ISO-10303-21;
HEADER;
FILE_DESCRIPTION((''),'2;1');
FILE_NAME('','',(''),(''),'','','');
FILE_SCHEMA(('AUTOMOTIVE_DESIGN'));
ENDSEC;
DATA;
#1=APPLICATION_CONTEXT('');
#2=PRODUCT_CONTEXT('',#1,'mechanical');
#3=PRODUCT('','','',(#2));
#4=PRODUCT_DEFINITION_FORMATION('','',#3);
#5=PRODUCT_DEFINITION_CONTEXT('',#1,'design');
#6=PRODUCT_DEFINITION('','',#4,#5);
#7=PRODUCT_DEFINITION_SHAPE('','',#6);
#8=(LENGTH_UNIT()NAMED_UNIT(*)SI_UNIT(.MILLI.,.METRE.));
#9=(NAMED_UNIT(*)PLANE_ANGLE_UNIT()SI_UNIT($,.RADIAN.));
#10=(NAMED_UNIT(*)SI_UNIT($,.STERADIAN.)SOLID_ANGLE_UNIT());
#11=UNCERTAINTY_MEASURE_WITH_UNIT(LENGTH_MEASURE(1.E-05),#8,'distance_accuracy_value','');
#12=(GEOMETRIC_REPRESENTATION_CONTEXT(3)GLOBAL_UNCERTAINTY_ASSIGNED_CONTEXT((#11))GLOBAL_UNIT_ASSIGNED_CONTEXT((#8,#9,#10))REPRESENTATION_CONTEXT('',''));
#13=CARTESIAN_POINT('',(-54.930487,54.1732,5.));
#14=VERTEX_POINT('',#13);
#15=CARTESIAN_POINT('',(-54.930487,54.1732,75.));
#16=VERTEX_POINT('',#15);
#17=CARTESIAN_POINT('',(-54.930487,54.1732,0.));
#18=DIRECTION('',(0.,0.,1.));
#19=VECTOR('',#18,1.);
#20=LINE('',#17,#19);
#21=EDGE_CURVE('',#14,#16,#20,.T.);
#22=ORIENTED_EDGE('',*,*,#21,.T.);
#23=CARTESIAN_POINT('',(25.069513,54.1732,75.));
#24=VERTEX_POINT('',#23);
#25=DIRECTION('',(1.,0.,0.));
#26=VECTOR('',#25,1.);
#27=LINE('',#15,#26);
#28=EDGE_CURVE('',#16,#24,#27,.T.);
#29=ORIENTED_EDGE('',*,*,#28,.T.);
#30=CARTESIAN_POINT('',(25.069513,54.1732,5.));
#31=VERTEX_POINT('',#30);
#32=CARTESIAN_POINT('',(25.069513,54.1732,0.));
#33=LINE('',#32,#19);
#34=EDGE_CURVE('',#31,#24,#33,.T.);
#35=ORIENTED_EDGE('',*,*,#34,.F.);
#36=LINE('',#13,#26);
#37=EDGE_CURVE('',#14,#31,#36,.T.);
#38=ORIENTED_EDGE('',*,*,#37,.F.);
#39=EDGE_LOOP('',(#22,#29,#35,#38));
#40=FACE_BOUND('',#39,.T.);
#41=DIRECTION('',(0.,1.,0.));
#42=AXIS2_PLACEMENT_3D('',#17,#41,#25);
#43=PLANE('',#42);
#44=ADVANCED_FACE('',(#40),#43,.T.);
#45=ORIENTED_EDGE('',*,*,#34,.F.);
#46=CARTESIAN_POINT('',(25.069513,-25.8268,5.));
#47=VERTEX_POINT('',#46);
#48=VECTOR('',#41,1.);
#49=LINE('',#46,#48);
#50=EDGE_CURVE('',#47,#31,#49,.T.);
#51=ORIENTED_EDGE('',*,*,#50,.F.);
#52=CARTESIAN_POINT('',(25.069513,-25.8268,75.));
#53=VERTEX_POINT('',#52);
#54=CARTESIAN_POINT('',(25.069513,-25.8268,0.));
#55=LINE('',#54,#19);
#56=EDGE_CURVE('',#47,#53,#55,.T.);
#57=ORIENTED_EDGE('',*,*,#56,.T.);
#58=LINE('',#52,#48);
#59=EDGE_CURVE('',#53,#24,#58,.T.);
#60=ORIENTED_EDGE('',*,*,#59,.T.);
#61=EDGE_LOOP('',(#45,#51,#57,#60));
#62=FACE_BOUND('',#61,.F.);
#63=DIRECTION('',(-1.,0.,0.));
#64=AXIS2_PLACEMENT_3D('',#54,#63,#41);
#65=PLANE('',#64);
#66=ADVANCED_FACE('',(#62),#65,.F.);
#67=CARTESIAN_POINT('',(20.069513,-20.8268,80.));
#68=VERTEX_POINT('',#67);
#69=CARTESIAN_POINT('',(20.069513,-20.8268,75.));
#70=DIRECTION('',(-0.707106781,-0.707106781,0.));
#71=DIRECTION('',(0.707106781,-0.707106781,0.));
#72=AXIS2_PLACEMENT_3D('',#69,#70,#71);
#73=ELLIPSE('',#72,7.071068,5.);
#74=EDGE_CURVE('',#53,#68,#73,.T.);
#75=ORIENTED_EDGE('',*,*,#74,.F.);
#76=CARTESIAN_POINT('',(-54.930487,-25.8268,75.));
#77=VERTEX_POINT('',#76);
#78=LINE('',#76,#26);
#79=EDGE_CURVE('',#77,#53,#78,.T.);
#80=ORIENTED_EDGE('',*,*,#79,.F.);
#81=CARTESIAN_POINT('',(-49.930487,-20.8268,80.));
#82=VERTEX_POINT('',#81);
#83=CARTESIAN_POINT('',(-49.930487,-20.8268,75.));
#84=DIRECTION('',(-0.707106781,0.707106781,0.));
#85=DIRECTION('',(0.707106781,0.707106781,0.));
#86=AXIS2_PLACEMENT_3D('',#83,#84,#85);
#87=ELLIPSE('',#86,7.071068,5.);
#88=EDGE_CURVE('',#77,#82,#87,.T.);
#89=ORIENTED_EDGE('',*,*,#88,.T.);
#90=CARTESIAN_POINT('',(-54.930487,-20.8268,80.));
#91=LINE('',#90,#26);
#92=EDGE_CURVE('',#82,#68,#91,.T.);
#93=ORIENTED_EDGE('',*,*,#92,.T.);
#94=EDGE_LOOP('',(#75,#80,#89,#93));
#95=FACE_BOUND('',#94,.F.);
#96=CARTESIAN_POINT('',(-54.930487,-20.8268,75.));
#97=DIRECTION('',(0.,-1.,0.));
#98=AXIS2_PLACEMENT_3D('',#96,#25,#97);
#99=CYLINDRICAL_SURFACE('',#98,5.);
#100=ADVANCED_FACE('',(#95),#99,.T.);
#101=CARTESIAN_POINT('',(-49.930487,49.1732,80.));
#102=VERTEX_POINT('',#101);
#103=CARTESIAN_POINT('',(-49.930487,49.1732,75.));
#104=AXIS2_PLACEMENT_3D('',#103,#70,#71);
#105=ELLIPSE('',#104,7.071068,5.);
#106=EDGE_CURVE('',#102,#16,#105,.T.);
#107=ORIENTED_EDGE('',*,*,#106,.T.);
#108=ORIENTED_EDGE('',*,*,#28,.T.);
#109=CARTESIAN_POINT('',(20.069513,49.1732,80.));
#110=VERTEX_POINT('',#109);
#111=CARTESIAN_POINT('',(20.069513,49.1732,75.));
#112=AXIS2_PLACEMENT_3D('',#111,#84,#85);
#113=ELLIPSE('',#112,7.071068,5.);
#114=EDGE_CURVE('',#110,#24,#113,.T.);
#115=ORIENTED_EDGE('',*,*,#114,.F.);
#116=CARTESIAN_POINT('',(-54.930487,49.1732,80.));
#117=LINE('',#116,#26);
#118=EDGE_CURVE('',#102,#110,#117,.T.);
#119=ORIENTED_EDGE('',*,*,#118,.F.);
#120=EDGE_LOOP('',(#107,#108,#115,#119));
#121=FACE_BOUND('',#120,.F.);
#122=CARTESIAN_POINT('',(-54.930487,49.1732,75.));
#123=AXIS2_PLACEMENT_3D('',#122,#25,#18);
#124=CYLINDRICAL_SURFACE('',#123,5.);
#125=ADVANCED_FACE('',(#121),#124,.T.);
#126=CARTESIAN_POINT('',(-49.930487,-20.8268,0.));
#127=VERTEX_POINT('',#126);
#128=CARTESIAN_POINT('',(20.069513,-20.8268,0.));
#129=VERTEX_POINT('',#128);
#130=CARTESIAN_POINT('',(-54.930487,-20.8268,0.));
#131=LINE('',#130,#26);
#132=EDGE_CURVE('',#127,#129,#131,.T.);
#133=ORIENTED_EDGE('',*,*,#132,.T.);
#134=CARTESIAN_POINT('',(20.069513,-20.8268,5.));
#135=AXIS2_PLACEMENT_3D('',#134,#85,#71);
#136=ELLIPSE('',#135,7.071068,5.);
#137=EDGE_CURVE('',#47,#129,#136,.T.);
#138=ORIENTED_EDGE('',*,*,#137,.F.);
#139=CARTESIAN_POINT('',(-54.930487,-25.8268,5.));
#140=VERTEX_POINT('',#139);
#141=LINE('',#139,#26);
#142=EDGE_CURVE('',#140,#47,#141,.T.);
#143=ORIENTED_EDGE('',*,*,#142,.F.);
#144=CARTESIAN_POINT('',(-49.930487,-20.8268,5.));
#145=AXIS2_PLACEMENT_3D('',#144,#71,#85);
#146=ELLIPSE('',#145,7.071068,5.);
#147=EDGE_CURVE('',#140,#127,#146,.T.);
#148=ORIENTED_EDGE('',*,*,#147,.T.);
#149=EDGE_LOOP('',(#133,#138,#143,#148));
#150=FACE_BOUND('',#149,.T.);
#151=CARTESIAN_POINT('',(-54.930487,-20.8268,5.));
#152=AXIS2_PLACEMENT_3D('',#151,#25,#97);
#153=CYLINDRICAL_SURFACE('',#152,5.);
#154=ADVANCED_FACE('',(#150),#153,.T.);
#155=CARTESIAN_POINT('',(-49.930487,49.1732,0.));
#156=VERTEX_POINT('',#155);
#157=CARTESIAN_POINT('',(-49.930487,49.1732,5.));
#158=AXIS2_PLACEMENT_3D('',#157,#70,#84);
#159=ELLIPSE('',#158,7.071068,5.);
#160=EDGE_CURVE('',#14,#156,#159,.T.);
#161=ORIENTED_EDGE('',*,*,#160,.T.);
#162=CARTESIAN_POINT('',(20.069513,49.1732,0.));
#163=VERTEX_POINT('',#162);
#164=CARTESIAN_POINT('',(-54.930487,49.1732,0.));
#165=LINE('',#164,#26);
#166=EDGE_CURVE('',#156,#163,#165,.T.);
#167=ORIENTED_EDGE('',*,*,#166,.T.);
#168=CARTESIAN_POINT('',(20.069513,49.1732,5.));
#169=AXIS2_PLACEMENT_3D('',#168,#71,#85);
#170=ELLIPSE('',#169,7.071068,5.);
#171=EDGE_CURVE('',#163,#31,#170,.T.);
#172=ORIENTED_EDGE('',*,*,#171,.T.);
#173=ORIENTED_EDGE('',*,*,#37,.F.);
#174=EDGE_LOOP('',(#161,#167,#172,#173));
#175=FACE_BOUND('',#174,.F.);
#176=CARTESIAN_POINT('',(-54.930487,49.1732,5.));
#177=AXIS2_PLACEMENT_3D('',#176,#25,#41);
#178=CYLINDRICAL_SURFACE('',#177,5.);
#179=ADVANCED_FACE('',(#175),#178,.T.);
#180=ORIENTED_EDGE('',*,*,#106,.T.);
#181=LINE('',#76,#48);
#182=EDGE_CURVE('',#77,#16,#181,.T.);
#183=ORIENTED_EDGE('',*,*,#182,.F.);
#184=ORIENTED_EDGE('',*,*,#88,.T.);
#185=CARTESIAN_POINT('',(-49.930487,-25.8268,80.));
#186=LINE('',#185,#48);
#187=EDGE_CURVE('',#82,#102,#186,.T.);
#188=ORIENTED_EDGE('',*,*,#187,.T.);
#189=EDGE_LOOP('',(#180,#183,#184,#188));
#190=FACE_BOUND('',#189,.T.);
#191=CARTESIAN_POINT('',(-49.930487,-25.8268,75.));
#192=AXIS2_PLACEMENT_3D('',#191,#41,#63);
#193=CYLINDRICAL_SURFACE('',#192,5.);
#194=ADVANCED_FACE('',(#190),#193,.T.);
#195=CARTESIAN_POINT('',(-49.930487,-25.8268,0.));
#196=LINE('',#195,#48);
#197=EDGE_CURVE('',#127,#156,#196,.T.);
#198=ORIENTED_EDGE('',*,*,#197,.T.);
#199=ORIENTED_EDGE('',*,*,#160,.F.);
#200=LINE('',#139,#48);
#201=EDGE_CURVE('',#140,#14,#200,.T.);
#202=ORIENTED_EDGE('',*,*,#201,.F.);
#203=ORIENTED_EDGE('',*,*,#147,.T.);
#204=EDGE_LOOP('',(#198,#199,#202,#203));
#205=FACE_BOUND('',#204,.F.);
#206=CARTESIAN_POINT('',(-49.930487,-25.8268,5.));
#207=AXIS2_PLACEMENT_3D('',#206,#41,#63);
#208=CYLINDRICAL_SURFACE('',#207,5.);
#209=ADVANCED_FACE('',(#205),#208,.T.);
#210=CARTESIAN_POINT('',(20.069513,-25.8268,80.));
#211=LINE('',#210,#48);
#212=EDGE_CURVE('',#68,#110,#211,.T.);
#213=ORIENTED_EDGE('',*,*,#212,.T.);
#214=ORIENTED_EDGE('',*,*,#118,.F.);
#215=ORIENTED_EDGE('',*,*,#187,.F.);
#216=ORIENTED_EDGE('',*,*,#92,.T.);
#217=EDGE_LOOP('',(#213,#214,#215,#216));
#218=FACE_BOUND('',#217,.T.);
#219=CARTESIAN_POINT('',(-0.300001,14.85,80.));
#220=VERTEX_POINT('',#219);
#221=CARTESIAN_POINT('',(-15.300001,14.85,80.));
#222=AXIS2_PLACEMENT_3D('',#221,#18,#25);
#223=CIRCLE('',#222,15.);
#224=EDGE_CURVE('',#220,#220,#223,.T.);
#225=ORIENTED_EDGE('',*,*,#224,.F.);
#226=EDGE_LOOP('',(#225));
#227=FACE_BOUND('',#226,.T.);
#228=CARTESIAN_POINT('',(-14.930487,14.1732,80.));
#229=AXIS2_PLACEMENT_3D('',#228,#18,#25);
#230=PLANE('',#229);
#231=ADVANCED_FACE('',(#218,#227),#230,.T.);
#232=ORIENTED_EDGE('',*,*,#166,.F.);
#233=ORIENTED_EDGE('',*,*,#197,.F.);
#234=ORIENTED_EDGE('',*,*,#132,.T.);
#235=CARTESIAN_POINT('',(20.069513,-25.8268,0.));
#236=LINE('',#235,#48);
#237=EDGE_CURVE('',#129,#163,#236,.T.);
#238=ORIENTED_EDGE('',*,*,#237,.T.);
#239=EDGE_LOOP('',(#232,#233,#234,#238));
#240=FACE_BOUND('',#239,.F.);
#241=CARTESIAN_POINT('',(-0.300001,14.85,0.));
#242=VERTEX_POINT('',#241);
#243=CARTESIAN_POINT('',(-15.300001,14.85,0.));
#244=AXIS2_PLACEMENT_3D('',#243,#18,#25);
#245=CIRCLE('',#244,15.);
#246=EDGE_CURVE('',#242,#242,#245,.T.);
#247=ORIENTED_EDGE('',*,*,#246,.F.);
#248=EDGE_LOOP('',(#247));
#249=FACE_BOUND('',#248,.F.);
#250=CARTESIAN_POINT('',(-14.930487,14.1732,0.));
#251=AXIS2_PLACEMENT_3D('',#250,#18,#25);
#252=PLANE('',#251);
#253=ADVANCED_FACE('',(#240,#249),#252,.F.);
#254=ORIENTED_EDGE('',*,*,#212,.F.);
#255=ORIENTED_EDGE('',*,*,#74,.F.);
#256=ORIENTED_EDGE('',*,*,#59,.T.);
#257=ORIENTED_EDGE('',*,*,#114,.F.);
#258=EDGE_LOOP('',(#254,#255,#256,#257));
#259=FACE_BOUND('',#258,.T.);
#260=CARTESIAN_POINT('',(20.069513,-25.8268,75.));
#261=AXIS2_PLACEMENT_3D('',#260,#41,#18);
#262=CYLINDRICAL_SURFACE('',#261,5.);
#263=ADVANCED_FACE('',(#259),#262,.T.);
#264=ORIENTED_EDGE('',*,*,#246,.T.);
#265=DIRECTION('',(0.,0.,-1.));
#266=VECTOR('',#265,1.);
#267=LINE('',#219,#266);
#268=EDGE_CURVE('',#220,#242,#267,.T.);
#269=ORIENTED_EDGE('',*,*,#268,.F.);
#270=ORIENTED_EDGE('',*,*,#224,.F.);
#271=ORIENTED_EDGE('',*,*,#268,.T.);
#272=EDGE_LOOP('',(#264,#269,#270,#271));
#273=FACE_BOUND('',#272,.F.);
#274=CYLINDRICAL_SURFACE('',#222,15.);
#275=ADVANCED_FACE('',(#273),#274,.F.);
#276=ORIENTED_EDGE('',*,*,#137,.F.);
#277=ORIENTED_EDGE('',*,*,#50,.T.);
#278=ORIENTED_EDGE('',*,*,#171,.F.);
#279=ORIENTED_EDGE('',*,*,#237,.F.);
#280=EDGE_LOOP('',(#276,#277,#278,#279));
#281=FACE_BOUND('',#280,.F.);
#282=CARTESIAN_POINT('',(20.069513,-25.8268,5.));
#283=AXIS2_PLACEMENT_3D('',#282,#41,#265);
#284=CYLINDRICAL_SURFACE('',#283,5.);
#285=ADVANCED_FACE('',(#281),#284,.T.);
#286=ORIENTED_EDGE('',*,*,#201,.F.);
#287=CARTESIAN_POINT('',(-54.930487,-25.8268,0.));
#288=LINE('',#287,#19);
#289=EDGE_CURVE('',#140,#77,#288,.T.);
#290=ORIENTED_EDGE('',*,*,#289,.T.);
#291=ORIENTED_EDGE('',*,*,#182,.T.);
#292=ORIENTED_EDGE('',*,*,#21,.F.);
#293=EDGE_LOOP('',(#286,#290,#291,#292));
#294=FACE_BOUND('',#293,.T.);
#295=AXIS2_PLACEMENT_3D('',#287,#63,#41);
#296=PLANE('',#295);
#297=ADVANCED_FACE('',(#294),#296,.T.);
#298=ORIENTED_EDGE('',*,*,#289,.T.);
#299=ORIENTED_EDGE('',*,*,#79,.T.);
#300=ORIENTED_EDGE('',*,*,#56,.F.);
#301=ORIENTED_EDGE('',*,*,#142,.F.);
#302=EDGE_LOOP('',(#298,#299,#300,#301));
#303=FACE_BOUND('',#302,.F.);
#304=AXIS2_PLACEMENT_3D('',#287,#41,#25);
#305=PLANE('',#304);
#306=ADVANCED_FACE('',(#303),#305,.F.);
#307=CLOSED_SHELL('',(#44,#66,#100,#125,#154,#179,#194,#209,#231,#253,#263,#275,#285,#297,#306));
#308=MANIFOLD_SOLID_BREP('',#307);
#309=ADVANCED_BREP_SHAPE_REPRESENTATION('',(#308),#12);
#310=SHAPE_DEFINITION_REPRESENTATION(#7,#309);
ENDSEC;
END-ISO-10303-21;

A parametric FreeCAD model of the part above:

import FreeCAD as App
import Part
import Sketcher
from FreeCAD import Vector


def edges_at(feature, points):
    """Names of the edges that pass closest to the given points."""
    edges = feature.Shape.Edges
    near = lambda p: min(range(len(edges)), key=lambda i: edges[i].distToShape(Part.Vertex(*p))[0])
    return sorted({f"Edge{near(p) + 1}" for p in points})

doc = App.newDocument("Part")
body = doc.addObject("PartDesign::Body", "Body")

sketch1 = body.newObject("Sketcher::SketchObject", "Sketch")
sketch1.AttachmentSupport = (doc.getObject("XY_Plane"), [""])
sketch1.MapMode = "FlatFace"
sketch1.addGeometry(Part.LineSegment(Vector(-55, 54, 0), Vector(-55, -26, 0)), False)
sketch1.addGeometry(Part.LineSegment(Vector(-55, -26, 0), Vector(25, -26, 0)), False)
sketch1.addGeometry(Part.LineSegment(Vector(25, -26, 0), Vector(25, 54, 0)), False)
sketch1.addGeometry(Part.LineSegment(Vector(25, 54, 0), Vector(-55, 54, 0)), False)
sketch1.addConstraint(Sketcher.Constraint("Coincident", 0, 2, 1, 1))
sketch1.addConstraint(Sketcher.Constraint("Coincident", 1, 2, 2, 1))
sketch1.addConstraint(Sketcher.Constraint("Coincident", 2, 2, 3, 1))
sketch1.addConstraint(Sketcher.Constraint("Coincident", 3, 2, 0, 1))
sketch1.addConstraint(Sketcher.Constraint("Vertical", 0))
sketch1.addConstraint(Sketcher.Constraint("Horizontal", 1))
sketch1.addConstraint(Sketcher.Constraint("Vertical", 2))
sketch1.addConstraint(Sketcher.Constraint("Horizontal", 3))
sketch1.addConstraint(Sketcher.Constraint("Equal", 3, 0))
sketch1.addConstraint(Sketcher.Constraint("DistanceX", 1, 1, 1, 2, 80.0))
sketch1.addConstraint(Sketcher.Constraint("DistanceY", 0, 2, -1, 1, 25.8268))
sketch1.addConstraint(Sketcher.Constraint("DistanceX", 0, 2, -1, 1, 54.930487))
pad1 = body.newObject("PartDesign::Pad", "Pad")
pad1.Profile = sketch1
pad1.Length = 80

sketch2 = body.newObject("Sketcher::SketchObject", "Sketch001")
sketch2.AttachmentSupport = (doc.getObject("XY_Plane"), [""])
sketch2.MapMode = "FlatFace"
sketch2.AttachmentOffset = App.Placement(Vector(0, 0, 80), App.Rotation())
sketch2.addGeometry(Part.Circle(Vector(-15, 15, 0), Vector(0, 0, 1), 15), False)
sketch2.addConstraint(Sketcher.Constraint("Diameter", 0, 30.0))
sketch2.addConstraint(Sketcher.Constraint("DistanceX", 0, 3, -1, 1, 15.300001))
sketch2.addConstraint(Sketcher.Constraint("DistanceY", -1, 1, 0, 3, 14.85))
pocket1 = body.newObject("PartDesign::Pocket", "Pocket")
pocket1.Profile = sketch2
pocket1.Type = "ThroughAll"
doc.recompute()

fillet = body.newObject("PartDesign::Fillet", "Fillet")
fillet.Base = (pocket1, edges_at(pocket1, [
    (-14.93, -25.827, 0),
    (-54.93, 14.173, 0),
    (25.07, 14.173, 0),
    (-14.93, 54.173, 0),
]))
fillet.Radius = 5
doc.recompute()

fillet2 = body.newObject("PartDesign::Fillet", "Fillet001")
fillet2.Base = (fillet, edges_at(fillet, [
    (-14.93, 54.173, 80),
    (-54.93, 14.173, 80),
    (-14.93, -25.827, 80),
    (25.07, 14.173, 80),
]))
fillet2.Radius = 5

doc.recompute()
